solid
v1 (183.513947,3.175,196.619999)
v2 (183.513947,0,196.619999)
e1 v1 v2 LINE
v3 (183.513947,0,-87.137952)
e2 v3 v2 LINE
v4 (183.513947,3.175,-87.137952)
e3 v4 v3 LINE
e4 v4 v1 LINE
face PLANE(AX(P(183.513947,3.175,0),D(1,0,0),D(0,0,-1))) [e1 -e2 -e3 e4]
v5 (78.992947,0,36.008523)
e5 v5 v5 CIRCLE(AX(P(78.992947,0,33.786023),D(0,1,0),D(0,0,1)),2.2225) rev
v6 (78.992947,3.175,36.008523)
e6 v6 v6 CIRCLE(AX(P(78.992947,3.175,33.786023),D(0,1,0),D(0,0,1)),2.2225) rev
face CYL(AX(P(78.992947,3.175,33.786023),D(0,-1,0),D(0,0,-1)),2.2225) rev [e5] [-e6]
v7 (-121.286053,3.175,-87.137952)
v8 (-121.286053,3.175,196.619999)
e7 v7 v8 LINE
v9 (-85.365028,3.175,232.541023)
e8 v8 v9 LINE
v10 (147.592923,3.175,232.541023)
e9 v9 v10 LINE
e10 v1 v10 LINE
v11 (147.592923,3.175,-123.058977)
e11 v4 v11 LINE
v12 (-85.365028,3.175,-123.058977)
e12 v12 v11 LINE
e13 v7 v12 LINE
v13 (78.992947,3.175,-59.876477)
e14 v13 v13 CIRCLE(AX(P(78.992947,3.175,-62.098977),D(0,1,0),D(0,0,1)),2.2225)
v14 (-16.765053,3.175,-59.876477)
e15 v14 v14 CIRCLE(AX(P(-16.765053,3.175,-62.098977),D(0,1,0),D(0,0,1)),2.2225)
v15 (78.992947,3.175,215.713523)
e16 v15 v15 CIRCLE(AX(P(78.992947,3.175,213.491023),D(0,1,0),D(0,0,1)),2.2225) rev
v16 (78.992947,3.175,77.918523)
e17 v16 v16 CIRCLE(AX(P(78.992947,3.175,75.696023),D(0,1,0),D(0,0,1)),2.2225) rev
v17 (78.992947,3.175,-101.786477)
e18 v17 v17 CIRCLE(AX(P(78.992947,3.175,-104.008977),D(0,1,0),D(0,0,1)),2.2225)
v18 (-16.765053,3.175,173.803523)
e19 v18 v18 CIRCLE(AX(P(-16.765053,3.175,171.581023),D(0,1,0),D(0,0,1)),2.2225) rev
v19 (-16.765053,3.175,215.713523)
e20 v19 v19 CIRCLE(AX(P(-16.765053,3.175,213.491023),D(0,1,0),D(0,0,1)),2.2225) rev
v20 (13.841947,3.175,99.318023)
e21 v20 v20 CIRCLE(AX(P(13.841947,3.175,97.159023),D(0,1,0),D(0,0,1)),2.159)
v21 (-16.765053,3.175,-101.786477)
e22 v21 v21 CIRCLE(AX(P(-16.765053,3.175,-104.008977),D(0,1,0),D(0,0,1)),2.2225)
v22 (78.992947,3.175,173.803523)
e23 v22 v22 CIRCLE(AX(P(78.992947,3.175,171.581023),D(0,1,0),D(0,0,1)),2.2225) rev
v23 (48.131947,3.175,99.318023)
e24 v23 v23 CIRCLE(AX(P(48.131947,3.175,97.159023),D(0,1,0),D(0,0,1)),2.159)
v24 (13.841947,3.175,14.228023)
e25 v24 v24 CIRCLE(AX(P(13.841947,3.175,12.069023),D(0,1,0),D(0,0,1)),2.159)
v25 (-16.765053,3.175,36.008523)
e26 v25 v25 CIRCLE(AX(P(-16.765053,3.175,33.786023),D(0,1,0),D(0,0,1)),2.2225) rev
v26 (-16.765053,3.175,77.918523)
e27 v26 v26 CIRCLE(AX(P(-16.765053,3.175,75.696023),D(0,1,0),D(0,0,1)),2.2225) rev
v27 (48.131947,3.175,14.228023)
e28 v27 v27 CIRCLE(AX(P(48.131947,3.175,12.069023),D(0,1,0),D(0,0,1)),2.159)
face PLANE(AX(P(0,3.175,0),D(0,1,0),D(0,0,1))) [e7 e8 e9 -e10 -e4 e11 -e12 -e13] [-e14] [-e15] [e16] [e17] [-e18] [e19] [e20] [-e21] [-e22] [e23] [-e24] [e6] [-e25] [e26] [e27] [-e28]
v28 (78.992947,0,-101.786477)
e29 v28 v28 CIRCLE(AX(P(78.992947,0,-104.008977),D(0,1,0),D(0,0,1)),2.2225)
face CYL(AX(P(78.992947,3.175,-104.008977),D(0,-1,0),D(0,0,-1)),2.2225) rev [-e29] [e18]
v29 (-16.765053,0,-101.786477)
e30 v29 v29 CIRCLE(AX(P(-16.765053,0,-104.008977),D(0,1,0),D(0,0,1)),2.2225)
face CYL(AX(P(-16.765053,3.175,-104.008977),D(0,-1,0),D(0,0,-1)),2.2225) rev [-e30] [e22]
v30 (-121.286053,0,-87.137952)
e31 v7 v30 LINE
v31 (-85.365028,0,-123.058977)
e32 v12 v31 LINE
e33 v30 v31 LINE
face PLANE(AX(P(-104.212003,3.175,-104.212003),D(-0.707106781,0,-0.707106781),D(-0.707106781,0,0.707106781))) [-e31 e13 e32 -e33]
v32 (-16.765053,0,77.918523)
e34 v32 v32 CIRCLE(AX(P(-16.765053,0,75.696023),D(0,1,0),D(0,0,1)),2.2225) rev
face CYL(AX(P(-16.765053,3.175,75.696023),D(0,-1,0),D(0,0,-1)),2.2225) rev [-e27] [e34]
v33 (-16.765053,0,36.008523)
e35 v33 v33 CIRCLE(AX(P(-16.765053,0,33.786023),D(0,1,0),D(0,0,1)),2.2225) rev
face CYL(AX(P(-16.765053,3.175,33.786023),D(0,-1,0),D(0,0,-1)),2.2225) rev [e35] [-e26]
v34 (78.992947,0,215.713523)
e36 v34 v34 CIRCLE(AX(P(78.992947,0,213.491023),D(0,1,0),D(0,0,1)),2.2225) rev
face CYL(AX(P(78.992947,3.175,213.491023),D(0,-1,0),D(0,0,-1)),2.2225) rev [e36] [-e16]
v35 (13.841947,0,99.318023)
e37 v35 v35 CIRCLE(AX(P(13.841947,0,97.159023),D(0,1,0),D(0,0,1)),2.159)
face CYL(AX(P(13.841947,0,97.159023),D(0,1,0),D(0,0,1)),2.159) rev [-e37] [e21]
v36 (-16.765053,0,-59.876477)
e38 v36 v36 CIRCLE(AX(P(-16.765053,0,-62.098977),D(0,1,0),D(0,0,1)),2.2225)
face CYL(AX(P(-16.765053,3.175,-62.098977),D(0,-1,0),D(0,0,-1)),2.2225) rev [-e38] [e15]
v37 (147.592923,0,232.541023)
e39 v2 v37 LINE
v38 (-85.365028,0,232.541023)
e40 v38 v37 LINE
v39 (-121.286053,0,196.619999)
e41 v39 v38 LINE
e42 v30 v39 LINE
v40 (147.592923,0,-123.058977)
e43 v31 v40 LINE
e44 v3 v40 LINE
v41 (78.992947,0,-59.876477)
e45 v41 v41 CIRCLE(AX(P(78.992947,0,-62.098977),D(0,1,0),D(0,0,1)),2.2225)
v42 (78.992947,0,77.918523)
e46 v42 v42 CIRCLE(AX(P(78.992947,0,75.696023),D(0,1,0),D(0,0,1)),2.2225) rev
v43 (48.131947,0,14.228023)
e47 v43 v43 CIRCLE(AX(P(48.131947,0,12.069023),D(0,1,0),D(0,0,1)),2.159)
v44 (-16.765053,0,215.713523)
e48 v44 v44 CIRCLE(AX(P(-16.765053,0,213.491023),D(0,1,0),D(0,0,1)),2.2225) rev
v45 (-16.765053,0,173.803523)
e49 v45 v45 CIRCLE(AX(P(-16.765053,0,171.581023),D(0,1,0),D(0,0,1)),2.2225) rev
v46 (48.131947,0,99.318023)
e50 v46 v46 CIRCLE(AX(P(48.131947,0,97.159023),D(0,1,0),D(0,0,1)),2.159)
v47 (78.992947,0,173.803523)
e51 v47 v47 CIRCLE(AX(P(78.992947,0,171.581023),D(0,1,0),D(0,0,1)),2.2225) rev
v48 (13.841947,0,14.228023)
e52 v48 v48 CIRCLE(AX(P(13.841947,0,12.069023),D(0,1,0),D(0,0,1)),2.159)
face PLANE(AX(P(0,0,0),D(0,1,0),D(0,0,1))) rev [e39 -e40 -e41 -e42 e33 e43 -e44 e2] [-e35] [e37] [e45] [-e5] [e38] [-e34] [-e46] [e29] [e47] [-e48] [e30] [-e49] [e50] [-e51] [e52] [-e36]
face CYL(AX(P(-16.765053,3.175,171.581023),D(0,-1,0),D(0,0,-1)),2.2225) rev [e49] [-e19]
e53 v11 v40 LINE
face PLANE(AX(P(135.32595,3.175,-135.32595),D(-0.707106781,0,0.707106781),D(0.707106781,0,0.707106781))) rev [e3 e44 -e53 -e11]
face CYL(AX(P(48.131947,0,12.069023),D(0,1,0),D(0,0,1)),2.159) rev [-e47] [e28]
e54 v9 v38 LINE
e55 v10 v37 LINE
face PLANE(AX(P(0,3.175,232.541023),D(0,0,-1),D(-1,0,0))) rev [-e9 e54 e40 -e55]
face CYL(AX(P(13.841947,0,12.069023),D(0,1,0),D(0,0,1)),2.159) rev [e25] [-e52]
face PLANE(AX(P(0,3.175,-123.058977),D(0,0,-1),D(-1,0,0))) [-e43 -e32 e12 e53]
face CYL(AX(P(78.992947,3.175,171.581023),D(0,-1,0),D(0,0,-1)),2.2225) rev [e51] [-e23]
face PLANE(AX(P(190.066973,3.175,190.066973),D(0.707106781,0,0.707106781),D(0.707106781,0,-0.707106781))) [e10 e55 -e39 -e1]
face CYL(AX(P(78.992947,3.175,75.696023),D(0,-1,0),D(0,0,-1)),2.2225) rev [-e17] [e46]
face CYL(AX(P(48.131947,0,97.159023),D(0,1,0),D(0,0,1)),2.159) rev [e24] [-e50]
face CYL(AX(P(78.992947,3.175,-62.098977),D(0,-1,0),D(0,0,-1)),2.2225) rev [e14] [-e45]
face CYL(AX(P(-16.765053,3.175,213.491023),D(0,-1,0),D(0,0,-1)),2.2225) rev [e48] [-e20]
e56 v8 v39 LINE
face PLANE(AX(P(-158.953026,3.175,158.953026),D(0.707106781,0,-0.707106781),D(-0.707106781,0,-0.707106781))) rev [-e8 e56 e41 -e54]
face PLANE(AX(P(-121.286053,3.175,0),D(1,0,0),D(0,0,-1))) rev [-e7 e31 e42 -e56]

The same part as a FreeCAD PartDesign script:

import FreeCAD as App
import Part
import Sketcher

V = App.Vector
Q = App.Units.Quantity

doc = App.newDocument("Part")
body = doc.addObject("PartDesign::Body", "Body")

# Sketch on XZ plane
sketch1 = doc.addObject("Sketcher::SketchObject", "Sketch")
body.addObject(sketch1)
sketch1.AttachmentSupport = (doc.XZ_Plane, [""])
sketch1.MapMode = "FlatFace"
sketch1.addGeometry([
    Part.LineSegment(V(-85.4, -123.1, 0), V(-121.3, -87.1, 0)),  # 0
    Part.LineSegment(V(-121.3, -87.1, 0), V(-121.3, 196.6, 0)),  # 1
    Part.LineSegment(V(-121.3, 196.6, 0), V(-85.4, 232.5, 0)),  # 2
    Part.LineSegment(V(-85.4, 232.5, 0), V(147.6, 232.5, 0)),  # 3
    Part.LineSegment(V(147.6, 232.5, 0), V(183.5, 196.6, 0)),  # 4
    Part.LineSegment(V(183.5, 196.6, 0), V(183.5, -87.1, 0)),  # 5
    Part.LineSegment(V(183.5, -87.1, 0), V(147.6, -123.1, 0)),  # 6
    Part.LineSegment(V(147.6, -123.1, 0), V(-85.4, -123.1, 0)),  # 7
    Part.Circle(V(-16.8, 213.5, 0), V(0, 0, 1), 2.2),  # 8
    Part.Circle(V(-16.8, 171.6, 0), V(0, 0, 1), 2.2),  # 9
    Part.Circle(V(-16.8, 75.7, 0), V(0, 0, 1), 2.2),  # 10
    Part.Circle(V(79, 213.5, 0), V(0, 0, 1), 2.2),  # 11
    Part.Circle(V(79, 171.6, 0), V(0, 0, 1), 2.2),  # 12
    Part.Circle(V(79, 75.7, 0), V(0, 0, 1), 2.2),  # 13
    Part.Circle(V(-16.8, 33.8, 0), V(0, 0, 1), 2.2),  # 14
    Part.Circle(V(-16.8, -62.1, 0), V(0, 0, 1), 2.2),  # 15
    Part.Circle(V(-16.8, -104, 0), V(0, 0, 1), 2.2),  # 16
    Part.Circle(V(79, 33.8, 0), V(0, 0, 1), 2.2),  # 17
    Part.Circle(V(79, -62.1, 0), V(0, 0, 1), 2.2),  # 18
    Part.Circle(V(79, -104, 0), V(0, 0, 1), 2.2),  # 19
], False)
sketch1.addConstraint([
    Sketcher.Constraint("Coincident", 0, 2, 1, 1),
    Sketcher.Constraint("Coincident", 1, 2, 2, 1),
    Sketcher.Constraint("Coincident", 2, 2, 3, 1),
    Sketcher.Constraint("Coincident", 3, 2, 4, 1),
    Sketcher.Constraint("Coincident", 4, 2, 5, 1),
    Sketcher.Constraint("Coincident", 5, 2, 6, 1),
    Sketcher.Constraint("Coincident", 6, 2, 7, 1),
    Sketcher.Constraint("Coincident", 7, 2, 0, 1),
    Sketcher.Constraint("Vertical", 1),
    Sketcher.Constraint("Horizontal", 3),
    Sketcher.Constraint("Vertical", 5),
    Sketcher.Constraint("Horizontal", 7),
    Sketcher.Constraint("Equal", 8, 9),
    Sketcher.Constraint("Equal", 9, 10),
    Sketcher.Constraint("Equal", 10, 11),
    Sketcher.Constraint("Equal", 11, 12),
    Sketcher.Constraint("Equal", 12, 13),
    Sketcher.Constraint("Equal", 13, 14),
    Sketcher.Constraint("Equal", 14, 15),
    Sketcher.Constraint("Equal", 15, 16),
    Sketcher.Constraint("Equal", 16, 17),
    Sketcher.Constraint("Equal", 17, 18),
    Sketcher.Constraint("Equal", 18, 19),
    Sketcher.Constraint("Perpendicular", 0, 2),
    Sketcher.Constraint("Perpendicular", 2, 4),
    Sketcher.Constraint("Perpendicular", 4, 6),
    Sketcher.Constraint("Horizontal", 8, 3, 11, 3),
    Sketcher.Constraint("Horizontal", 9, 3, 12, 3),
    Sketcher.Constraint("Horizontal", 10, 3, 13, 3),
    Sketcher.Constraint("Horizontal", 14, 3, 17, 3),
    Sketcher.Constraint("Horizontal", 15, 3, 18, 3),
    Sketcher.Constraint("Horizontal", 16, 3, 19, 3),
    Sketcher.Constraint("Horizontal", 1, 2, 4, 2),
    Sketcher.Constraint("Horizontal", 0, 2, 5, 2),
    Sketcher.Constraint("Vertical", 8, 3, 9, 3),
    Sketcher.Constraint("Vertical", 9, 3, 10, 3),
    Sketcher.Constraint("Vertical", 11, 3, 12, 3),
    Sketcher.Constraint("Vertical", 12, 3, 13, 3),
    Sketcher.Constraint("Vertical", 10, 3, 14, 3),
    Sketcher.Constraint("Vertical", 14, 3, 15, 3),
    Sketcher.Constraint("Vertical", 15, 3, 16, 3),
    Sketcher.Constraint("Vertical", 13, 3, 17, 3),
    Sketcher.Constraint("Vertical", 17, 3, 18, 3),
    Sketcher.Constraint("Vertical", 18, 3, 19, 3),
    Sketcher.Constraint("Vertical", 3, 2, 6, 2),
    Sketcher.Constraint("Vertical", 2, 2, 7, 2),
    Sketcher.Constraint("Distance", 0, Q("2 in")),
    Sketcher.Constraint("Diameter", 8, Q("0.175 in")),
    Sketcher.Constraint("DistanceY", 15, 3, 9, 3, Q("9.2 in")),
    Sketcher.Constraint("DistanceY", 9, 3, 2, 2, Q("2.4 in")),
    Sketcher.Constraint("DistanceY", 6, 2, 18, 3, Q("2.4 in")),
    Sketcher.Constraint("DistanceY", 9, 3, 8, 3, Q("1.65 in")),
    Sketcher.Constraint("DistanceX", 8, 3, 11, 3, Q("3.77 in")),
    Sketcher.Constraint("DistanceY", 14, 3, 10, 3, Q("1.65 in")),
    Sketcher.Constraint("DistanceY", 16, 3, 15, 3, Q("1.65 in")),
    Sketcher.Constraint("DistanceY", 10, 3, 9, 3, Q("3.775 in")),
    Sketcher.Constraint("DistanceX", 0, 2, 16, 3, Q("4.115 in")),
    Sketcher.Constraint("DistanceX", 11, 3, 4, 2, Q("4.115 in")),
    Sketcher.Constraint("DistanceY", -1, 1, 1, 2, Q("196.619999 mm")),
    Sketcher.Constraint("DistanceX", 2, 2, -1, 1, Q("85.365028 mm")),
])
pad1 = doc.addObject("PartDesign::Pad", "Pad")
body.addObject(pad1)
pad1.Profile = sketch1
pad1.Length = Q("0.125 in")
pad1.Reversed = True

# Sketch on XZ plane
sketch2 = doc.addObject("Sketcher::SketchObject", "Sketch001")
body.addObject(sketch2)
sketch2.AttachmentSupport = (doc.XZ_Plane, [""])
sketch2.MapMode = "FlatFace"
sketch2.AttachmentOffset = App.Placement(V(0, 0, -0.125 * 25.4), App.Rotation())
sketch2.addGeometry([
    Part.Circle(V(13.8, 12.1, 0), V(0, 0, 1), 2.2),
    Part.Circle(V(48.1, 12.1, 0), V(0, 0, 1), 2.2),
    Part.Circle(V(13.8, 97.2, 0), V(0, 0, 1), 2.2),
    Part.Circle(V(48.1, 97.2, 0), V(0, 0, 1), 2.2),
], False)
sketch2.addConstraint([
    Sketcher.Constraint("Equal", 0, 1),
    Sketcher.Constraint("Equal", 1, 2),
    Sketcher.Constraint("Equal", 2, 3),
    Sketcher.Constraint("Horizontal", 0, 3, 1, 3),
    Sketcher.Constraint("Horizontal", 2, 3, 3, 3),
    Sketcher.Constraint("Vertical", 0, 3, 2, 3),
    Sketcher.Constraint("Vertical", 1, 3, 3, 3),
    Sketcher.Constraint("Diameter", 0, Q("0.17 in")),
    Sketcher.Constraint("DistanceX", 0, 3, 1, 3, Q("1.35 in")),
    Sketcher.Constraint("DistanceY", 0, 3, 2, 3, Q("3.35 in")),
    Sketcher.Constraint("DistanceX", -1, 1, 0, 3, Q("13.841947 mm")),
    Sketcher.Constraint("DistanceY", -1, 1, 0, 3, Q("12.069023 mm")),
])
pocket1 = doc.addObject("PartDesign::Pocket", "Pocket")
body.addObject(pocket1)
pocket1.Profile = sketch2
pocket1.Type = "ThroughAll"
pocket1.Reversed = True

doc.recompute()
